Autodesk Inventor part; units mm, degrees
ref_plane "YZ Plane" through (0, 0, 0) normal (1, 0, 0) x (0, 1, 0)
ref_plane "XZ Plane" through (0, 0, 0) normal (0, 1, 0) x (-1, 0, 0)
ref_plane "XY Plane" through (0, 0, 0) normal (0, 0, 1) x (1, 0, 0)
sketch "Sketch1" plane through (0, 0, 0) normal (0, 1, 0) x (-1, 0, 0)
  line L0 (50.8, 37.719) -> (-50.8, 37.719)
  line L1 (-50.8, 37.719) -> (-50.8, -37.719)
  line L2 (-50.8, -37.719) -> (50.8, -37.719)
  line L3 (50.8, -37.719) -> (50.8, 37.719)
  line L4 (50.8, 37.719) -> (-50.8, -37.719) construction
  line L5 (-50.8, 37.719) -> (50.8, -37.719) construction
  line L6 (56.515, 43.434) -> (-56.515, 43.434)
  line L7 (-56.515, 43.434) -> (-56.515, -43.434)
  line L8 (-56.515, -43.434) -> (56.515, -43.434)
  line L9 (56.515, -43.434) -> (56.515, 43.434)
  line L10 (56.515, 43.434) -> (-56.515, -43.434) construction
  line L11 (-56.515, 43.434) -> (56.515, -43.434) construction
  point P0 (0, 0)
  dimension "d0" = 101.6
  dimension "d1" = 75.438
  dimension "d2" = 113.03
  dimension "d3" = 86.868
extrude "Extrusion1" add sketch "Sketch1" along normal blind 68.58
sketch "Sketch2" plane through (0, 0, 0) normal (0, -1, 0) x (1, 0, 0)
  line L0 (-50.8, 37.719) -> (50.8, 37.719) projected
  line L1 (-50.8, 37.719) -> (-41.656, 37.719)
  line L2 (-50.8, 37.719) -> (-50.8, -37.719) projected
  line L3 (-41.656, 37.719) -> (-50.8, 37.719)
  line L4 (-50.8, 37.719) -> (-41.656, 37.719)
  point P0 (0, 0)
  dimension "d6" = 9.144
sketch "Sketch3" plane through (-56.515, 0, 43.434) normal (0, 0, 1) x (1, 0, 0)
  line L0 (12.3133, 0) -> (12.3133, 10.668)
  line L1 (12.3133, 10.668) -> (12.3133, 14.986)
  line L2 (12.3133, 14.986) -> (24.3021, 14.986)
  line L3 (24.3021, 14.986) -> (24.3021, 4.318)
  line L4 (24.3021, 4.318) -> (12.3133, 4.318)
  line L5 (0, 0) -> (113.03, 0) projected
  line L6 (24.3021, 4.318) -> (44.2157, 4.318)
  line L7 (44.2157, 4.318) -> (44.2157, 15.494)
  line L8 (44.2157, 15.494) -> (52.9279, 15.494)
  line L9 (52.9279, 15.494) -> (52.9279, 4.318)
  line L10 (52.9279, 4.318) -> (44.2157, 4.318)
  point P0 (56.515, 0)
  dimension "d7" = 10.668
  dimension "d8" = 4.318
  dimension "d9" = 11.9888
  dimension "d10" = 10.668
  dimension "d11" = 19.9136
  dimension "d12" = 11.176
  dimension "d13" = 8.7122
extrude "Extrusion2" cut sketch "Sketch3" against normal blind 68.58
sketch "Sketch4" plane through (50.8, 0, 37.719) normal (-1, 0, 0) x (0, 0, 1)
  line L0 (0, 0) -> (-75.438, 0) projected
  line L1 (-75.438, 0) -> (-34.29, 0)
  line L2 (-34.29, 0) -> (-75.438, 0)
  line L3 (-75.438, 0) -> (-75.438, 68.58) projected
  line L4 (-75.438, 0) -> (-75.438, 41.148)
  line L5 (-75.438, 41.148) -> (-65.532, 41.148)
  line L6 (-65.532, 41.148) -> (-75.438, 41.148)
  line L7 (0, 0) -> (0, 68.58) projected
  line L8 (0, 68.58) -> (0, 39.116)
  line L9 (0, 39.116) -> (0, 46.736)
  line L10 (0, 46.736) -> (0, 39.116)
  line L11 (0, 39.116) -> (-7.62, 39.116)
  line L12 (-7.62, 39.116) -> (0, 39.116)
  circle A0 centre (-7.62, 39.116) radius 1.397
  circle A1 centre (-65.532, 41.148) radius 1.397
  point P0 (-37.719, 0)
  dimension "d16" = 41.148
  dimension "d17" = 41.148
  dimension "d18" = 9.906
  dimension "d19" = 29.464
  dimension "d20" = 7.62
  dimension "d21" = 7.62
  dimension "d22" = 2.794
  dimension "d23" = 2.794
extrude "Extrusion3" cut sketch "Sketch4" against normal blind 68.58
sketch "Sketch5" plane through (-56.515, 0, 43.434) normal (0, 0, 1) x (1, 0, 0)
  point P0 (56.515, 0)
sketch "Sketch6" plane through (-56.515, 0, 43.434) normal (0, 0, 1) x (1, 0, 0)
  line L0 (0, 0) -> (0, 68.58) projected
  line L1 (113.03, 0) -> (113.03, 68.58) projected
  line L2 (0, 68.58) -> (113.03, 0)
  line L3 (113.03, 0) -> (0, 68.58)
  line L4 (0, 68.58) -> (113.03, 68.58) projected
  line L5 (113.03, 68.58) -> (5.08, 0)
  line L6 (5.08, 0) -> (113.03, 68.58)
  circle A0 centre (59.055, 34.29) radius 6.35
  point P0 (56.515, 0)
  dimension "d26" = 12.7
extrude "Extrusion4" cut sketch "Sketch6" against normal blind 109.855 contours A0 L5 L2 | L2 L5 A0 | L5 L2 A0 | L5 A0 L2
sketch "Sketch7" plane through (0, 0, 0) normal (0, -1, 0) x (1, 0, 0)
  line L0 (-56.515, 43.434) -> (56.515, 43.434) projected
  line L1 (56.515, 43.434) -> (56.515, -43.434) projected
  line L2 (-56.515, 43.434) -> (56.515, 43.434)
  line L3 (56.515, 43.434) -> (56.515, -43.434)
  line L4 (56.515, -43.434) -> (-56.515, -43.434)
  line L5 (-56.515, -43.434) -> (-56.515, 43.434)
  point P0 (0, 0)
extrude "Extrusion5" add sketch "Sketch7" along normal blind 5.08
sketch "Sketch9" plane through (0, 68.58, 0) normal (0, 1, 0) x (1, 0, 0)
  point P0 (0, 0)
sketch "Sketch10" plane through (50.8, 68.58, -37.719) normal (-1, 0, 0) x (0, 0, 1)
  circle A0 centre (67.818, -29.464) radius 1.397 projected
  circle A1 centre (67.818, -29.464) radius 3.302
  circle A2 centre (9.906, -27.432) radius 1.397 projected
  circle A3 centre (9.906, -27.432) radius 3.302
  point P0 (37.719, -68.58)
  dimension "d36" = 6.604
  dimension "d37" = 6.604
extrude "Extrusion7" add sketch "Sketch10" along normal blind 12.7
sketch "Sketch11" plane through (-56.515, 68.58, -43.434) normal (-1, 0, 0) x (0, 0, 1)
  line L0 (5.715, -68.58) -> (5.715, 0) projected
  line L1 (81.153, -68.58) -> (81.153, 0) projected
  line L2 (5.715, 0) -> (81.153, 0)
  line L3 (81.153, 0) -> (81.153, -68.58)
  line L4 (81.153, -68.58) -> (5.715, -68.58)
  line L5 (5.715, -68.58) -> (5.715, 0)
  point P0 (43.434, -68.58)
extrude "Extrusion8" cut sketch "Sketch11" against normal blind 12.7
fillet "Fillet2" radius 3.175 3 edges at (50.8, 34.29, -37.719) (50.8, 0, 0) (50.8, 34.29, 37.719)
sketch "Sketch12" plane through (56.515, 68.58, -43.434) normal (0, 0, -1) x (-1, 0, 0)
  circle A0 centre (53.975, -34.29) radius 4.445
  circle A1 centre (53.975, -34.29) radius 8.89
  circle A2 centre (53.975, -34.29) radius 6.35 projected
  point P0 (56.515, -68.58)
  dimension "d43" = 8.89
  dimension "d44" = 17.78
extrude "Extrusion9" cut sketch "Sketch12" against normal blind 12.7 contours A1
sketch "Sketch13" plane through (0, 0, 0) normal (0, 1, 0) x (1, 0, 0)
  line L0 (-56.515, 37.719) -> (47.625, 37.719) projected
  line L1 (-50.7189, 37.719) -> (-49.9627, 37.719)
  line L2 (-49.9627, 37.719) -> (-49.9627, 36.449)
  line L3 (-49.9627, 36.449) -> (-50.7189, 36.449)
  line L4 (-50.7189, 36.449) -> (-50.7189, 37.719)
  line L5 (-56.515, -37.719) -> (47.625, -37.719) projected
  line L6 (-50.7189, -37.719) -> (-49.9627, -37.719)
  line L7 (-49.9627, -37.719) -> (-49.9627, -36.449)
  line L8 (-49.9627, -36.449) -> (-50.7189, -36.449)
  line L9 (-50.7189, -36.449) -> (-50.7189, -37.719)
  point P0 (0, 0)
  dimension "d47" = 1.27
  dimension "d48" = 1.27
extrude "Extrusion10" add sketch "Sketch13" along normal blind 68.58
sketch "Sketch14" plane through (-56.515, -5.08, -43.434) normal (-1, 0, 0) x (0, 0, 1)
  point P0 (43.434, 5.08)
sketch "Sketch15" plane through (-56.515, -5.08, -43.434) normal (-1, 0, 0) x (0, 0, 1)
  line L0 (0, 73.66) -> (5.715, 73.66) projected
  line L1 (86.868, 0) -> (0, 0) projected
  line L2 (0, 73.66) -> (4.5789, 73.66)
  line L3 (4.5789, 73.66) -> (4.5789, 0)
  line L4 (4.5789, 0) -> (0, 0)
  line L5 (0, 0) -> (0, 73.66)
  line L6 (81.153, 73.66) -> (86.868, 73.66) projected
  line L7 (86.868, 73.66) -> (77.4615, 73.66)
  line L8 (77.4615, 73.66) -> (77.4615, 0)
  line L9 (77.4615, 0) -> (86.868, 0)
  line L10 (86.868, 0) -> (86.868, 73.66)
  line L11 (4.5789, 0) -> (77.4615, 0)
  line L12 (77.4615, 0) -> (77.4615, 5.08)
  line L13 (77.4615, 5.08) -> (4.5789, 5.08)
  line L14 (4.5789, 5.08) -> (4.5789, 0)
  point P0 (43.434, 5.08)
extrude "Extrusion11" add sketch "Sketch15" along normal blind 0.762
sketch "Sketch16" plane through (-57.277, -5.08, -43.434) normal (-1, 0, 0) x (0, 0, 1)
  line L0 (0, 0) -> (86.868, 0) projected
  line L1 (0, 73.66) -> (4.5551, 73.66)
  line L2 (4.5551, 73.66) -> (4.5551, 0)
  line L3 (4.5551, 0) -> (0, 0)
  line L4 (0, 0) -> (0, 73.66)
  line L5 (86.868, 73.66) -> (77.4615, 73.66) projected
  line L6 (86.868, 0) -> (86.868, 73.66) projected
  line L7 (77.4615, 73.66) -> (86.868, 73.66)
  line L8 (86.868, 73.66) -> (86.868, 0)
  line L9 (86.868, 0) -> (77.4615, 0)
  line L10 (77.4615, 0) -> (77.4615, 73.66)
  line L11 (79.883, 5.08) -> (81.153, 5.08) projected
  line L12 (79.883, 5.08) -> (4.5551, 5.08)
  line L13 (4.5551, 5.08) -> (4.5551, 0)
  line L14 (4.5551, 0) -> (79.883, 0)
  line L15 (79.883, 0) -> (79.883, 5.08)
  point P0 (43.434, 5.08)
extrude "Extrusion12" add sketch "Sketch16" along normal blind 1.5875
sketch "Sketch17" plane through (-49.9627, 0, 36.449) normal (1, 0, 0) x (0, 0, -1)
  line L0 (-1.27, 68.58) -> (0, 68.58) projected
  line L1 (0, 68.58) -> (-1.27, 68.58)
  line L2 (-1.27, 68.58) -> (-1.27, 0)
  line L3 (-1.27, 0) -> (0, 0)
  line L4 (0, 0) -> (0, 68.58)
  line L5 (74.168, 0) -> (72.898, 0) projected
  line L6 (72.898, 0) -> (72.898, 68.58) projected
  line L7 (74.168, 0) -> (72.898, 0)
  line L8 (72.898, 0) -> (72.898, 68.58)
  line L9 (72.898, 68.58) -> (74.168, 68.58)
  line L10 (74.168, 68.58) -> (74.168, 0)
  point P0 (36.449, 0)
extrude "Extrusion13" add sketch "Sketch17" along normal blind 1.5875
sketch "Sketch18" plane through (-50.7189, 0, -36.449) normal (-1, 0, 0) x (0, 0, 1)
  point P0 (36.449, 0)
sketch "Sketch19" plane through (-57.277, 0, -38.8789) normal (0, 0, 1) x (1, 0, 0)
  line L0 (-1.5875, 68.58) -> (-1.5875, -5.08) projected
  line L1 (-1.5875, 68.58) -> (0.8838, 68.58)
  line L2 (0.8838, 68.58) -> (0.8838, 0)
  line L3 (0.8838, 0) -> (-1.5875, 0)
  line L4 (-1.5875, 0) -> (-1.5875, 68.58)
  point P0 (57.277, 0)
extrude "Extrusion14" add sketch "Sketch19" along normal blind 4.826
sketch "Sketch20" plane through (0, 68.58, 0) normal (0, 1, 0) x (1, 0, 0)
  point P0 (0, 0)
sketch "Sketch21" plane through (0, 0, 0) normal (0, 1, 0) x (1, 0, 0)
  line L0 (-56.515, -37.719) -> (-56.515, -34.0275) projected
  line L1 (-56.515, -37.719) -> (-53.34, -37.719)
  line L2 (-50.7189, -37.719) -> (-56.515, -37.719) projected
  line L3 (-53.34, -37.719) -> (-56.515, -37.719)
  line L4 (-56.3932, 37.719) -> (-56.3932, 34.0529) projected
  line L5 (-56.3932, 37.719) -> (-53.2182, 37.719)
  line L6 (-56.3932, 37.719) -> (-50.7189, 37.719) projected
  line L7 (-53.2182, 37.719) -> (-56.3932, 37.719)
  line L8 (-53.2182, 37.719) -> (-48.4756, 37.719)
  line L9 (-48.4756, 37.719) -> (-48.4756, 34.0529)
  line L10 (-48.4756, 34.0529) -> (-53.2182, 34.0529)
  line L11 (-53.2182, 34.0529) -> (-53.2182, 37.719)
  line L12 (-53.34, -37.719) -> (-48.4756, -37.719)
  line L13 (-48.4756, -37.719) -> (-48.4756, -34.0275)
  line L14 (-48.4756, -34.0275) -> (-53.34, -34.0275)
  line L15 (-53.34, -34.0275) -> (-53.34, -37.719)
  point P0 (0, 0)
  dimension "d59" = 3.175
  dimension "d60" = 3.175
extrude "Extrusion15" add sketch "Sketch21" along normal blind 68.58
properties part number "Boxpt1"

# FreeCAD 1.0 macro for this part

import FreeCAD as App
import Part
import Sketcher

V = App.Vector
Q = App.Units.Quantity


def edges_at(feature, points):
    """Names of the edges that pass closest to the given points."""
    edges = feature.Shape.Edges
    near = lambda p: min(range(len(edges)), key=lambda i: edges[i].distToShape(Part.Vertex(*p))[0])
    return sorted({f"Edge{near(p) + 1}" for p in points})

doc = App.newDocument("Part")
body = doc.addObject("PartDesign::Body", "Body")

# Sketch on XZ plane
sketch1 = body.newObject("Sketcher::SketchObject", "Sketch")
sketch1.AttachmentSupport = (doc.getObject("XZ_Plane"), [""])
sketch1.MapMode = "FlatFace"
sketch1.addGeometry(Part.LineSegment(V(-56.515, -43.434, 0), V(-56.515, 43.434, 0)), False)
sketch1.addGeometry(Part.LineSegment(V(-56.515, 43.434, 0), V(56.515, 43.434, 0)), False)
sketch1.addGeometry(Part.LineSegment(V(56.515, 43.434, 0), V(56.515, -43.434, 0)), False)
sketch1.addGeometry(Part.LineSegment(V(56.515, -43.434, 0), V(-56.515, -43.434, 0)), False)
sketch1.addGeometry(Part.LineSegment(V(50.8, 37.719, 0), V(-50.8, 37.719, 0)), False)
sketch1.addGeometry(Part.LineSegment(V(-50.8, 37.719, 0), V(-50.8, -37.719, 0)), False)
sketch1.addGeometry(Part.LineSegment(V(-50.8, -37.719, 0), V(50.8, -37.719, 0)), False)
sketch1.addGeometry(Part.LineSegment(V(50.8, -37.719, 0), V(50.8, 37.719, 0)), False)
sketch1.addConstraint(Sketcher.Constraint("Coincident", 0, 2, 1, 1))
sketch1.addConstraint(Sketcher.Constraint("Coincident", 1, 2, 2, 1))
sketch1.addConstraint(Sketcher.Constraint("Coincident", 2, 2, 3, 1))
sketch1.addConstraint(Sketcher.Constraint("Coincident", 3, 2, 0, 1))
sketch1.addConstraint(Sketcher.Constraint("Coincident", 4, 2, 5, 1))
sketch1.addConstraint(Sketcher.Constraint("Coincident", 5, 2, 6, 1))
sketch1.addConstraint(Sketcher.Constraint("Coincident", 6, 2, 7, 1))
sketch1.addConstraint(Sketcher.Constraint("Coincident", 7, 2, 4, 1))
sketch1.addConstraint(Sketcher.Constraint("Vertical", 0))
sketch1.addConstraint(Sketcher.Constraint("Horizontal", 1))
sketch1.addConstraint(Sketcher.Constraint("Vertical", 2))
sketch1.addConstraint(Sketcher.Constraint("Horizontal", 3))
sketch1.addConstraint(Sketcher.Constraint("Horizontal", 4))
sketch1.addConstraint(Sketcher.Constraint("Vertical", 5))
sketch1.addConstraint(Sketcher.Constraint("Horizontal", 6))
sketch1.addConstraint(Sketcher.Constraint("Vertical", 7))
sketch1.addConstraint(Sketcher.Constraint("Symmetric", 0, 2, 2, 2, -1, 1))
sketch1.addConstraint(Sketcher.Constraint("Symmetric", 4, 2, 6, 2, -1, 1))
sketch1.addConstraint(Sketcher.Constraint("DistanceX", 4, 2, 4, 1, Q("4 in")))
sketch1.addConstraint(Sketcher.Constraint("DistanceX", 1, 1, 1, 2, Q("4.45 in")))
sketch1.addConstraint(Sketcher.Constraint("DistanceY", 0, 1, 0, 2, Q("3.42 in")))
sketch1.addConstraint(Sketcher.Constraint("DistanceY", 5, 2, 5, 1, Q("2.97 in")))
pad1 = body.newObject("PartDesign::Pad", "Pad")
pad1.Profile = sketch1
pad1.Length = Q("2.7 in")
pad1.Reversed = True

# Sketch on XY plane
sketch2 = body.newObject("Sketcher::SketchObject", "Sketch001")
sketch2.AttachmentSupport = (doc.getObject("XY_Plane"), [""])
sketch2.MapMode = "FlatFace"
sketch2.AttachmentOffset = App.Placement(V(0, 0, 1.71 * 25.4), App.Rotation())
sketch2.addGeometry(Part.LineSegment(V(-12.2993, 15.494, 0), V(-12.2993, 4.318, 0)), False)
sketch2.addGeometry(Part.LineSegment(V(-12.2993, 4.318, 0), V(-3.5871, 4.318, 0)), False)
sketch2.addGeometry(Part.LineSegment(V(-3.5871, 4.318, 0), V(-3.5871, 15.494, 0)), False)
sketch2.addGeometry(Part.LineSegment(V(-3.5871, 15.494, 0), V(-12.2993, 15.494, 0)), False)
sketch2.addGeometry(Part.LineSegment(V(-44.2017, 14.986, 0), V(-44.2017, 4.318, 0)), False)
sketch2.addGeometry(Part.LineSegment(V(-44.2017, 4.318, 0), V(-32.2129, 4.318, 0)), False)
sketch2.addGeometry(Part.LineSegment(V(-32.2129, 4.318, 0), V(-32.2129, 14.986, 0)), False)
sketch2.addGeometry(Part.LineSegment(V(-32.2129, 14.986, 0), V(-44.2017, 14.986, 0)), False)
sketch2.addConstraint(Sketcher.Constraint("Coincident", 0, 2, 1, 1))
sketch2.addConstraint(Sketcher.Constraint("Coincident", 1, 2, 2, 1))
sketch2.addConstraint(Sketcher.Constraint("Coincident", 2, 2, 3, 1))
sketch2.addConstraint(Sketcher.Constraint("Coincident", 3, 2, 0, 1))
sketch2.addConstraint(Sketcher.Constraint("Coincident", 4, 2, 5, 1))
sketch2.addConstraint(Sketcher.Constraint("Coincident", 5, 2, 6, 1))
sketch2.addConstraint(Sketcher.Constraint("Coincident", 6, 2, 7, 1))
sketch2.addConstraint(Sketcher.Constraint("Coincident", 7, 2, 4, 1))
sketch2.addConstraint(Sketcher.Constraint("Vertical", 0))
sketch2.addConstraint(Sketcher.Constraint("Horizontal", 1))
sketch2.addConstraint(Sketcher.Constraint("Vertical", 2))
sketch2.addConstraint(Sketcher.Constraint("Horizontal", 3))
sketch2.addConstraint(Sketcher.Constraint("Vertical", 4))
sketch2.addConstraint(Sketcher.Constraint("Horizontal", 5))
sketch2.addConstraint(Sketcher.Constraint("Vertical", 6))
sketch2.addConstraint(Sketcher.Constraint("Horizontal", 7))
sketch2.addConstraint(Sketcher.Constraint("Horizontal", 1, 2, 4, 2))
sketch2.addConstraint(Sketcher.Constraint("DistanceY", 0, 2, 0, 1, Q("0.44 in")))
sketch2.addConstraint(Sketcher.Constraint("DistanceY", 4, 2, 4, 1, Q("0.42 in")))
sketch2.addConstraint(Sketcher.Constraint("DistanceX", 1, 1, 1, 2, Q("0.343 in")))
sketch2.addConstraint(Sketcher.Constraint("DistanceX", 5, 1, 5, 2, Q("0.472 in")))
sketch2.addConstraint(Sketcher.Constraint("DistanceY", -1, 1, 0, 2, Q("0.17 in")))
sketch2.addConstraint(Sketcher.Constraint("DistanceX", 5, 2, 0, 2, Q("0.784 in")))
sketch2.addConstraint(Sketcher.Constraint("DistanceX", 0, 2, -1, 1, 12.2993))
pocket1 = body.newObject("PartDesign::Pocket", "Pocket")
pocket1.Profile = sketch2
pocket1.Length = Q("2.7 in")

# Sketch on YZ plane
sketch3 = body.newObject("Sketcher::SketchObject", "Sketch002")
sketch3.AttachmentSupport = (doc.getObject("YZ_Plane"), [""])
sketch3.MapMode = "FlatFace"
sketch3.AttachmentOffset = App.Placement(V(0, 0, 2 * 25.4), App.Rotation())
sketch3.addGeometry(Part.Circle(V(41.148, -27.813, 0), V(0, 0, 1), 1.397), False)
sketch3.addGeometry(Part.Circle(V(39.116, 30.099, 0), V(0, 0, 1), 1.397), False)
sketch3.addConstraint(Sketcher.Constraint("Equal", 0, 1))
sketch3.addConstraint(Sketcher.Constraint("Diameter", 0, Q("0.11 in")))
sketch3.addConstraint(Sketcher.Constraint("DistanceX", -1, 1, 0, 3, Q("1.62 in")))
sketch3.addConstraint(Sketcher.Constraint("DistanceX", -1, 1, 1, 3, Q("1.54 in")))
sketch3.addConstraint(Sketcher.Constraint("DistanceY", 0, 3, 1, 3, Q("2.28 in")))
sketch3.addConstraint(Sketcher.Constraint("DistanceY", 0, 3, -1, 1, Q("1.095 in")))
pocket2 = body.newObject("PartDesign::Pocket", "Pocket001")
pocket2.Profile = sketch3
pocket2.Length = Q("2.7 in")
pocket2.Reversed = True

# Sketch on XY plane
sketch4 = body.newObject("Sketcher::SketchObject", "Sketch003")
sketch4.AttachmentSupport = (doc.getObject("XY_Plane"), [""])
sketch4.MapMode = "FlatFace"
sketch4.AttachmentOffset = App.Placement(V(0, 0, 1.71 * 25.4), App.Rotation())
sketch4.addGeometry(Part.Circle(V(2.54, 34.29, 0), V(0, 0, 1), 6.35), False)
sketch4.addConstraint(Sketcher.Constraint("Diameter", 0, Q("0.5 in")))
sketch4.addConstraint(Sketcher.Constraint("DistanceX", -1, 1, 0, 3, Q("0.1 in")))
sketch4.addConstraint(Sketcher.Constraint("DistanceY", -1, 1, 0, 3, Q("1.35 in")))
pocket3 = body.newObject("PartDesign::Pocket", "Pocket002")
pocket3.Profile = sketch4
pocket3.Length = Q("4.325 in")

# Sketch on XZ plane
sketch5 = body.newObject("Sketcher::SketchObject", "Sketch004")
sketch5.AttachmentSupport = (doc.getObject("XZ_Plane"), [""])
sketch5.MapMode = "FlatFace"
sketch5.addGeometry(Part.LineSegment(V(56.515, 43.434, 0), V(-56.515, 43.434, 0)), False)
sketch5.addGeometry(Part.LineSegment(V(-56.515, 43.434, 0), V(-56.515, -43.434, 0)), False)
sketch5.addGeometry(Part.LineSegment(V(-56.515, -43.434, 0), V(56.515, -43.434, 0)), False)
sketch5.addGeometry(Part.LineSegment(V(56.515, -43.434, 0), V(56.515, 43.434, 0)), False)
sketch5.addConstraint(Sketcher.Constraint("Coincident", 0, 2, 1, 1))
sketch5.addConstraint(Sketcher.Constraint("Coincident", 1, 2, 2, 1))
sketch5.addConstraint(Sketcher.Constraint("Coincident", 2, 2, 3, 1))
sketch5.addConstraint(Sketcher.Constraint("Coincident", 3, 2, 0, 1))
sketch5.addConstraint(Sketcher.Constraint("Horizontal", 0))
sketch5.addConstraint(Sketcher.Constraint("Vertical", 1))
sketch5.addConstraint(Sketcher.Constraint("Horizontal", 2))
sketch5.addConstraint(Sketcher.Constraint("Vertical", 3))
sketch5.addConstraint(Sketcher.Constraint("Symmetric", 0, 2, 2, 2, -1, 1))
sketch5.addConstraint(Sketcher.Constraint("DistanceX", 0, 2, 0, 1, Q("4.45 in")))
sketch5.addConstraint(Sketcher.Constraint("DistanceY", 1, 2, 1, 1, Q("3.42 in")))
pad2 = body.newObject("PartDesign::Pad", "Pad001")
pad2.Profile = sketch5
pad2.Length = Q("0.2 in")

# Sketch on YZ plane
sketch6 = body.newObject("Sketcher::SketchObject", "Sketch005")
sketch6.AttachmentSupport = (doc.getObject("YZ_Plane"), [""])
sketch6.MapMode = "FlatFace"
sketch6.AttachmentOffset = App.Placement(V(0, 0, 2 * 25.4), App.Rotation())
sketch6.addGeometry(Part.Circle(V(39.116, 30.099, 0), V(0, 0, 1), 3.302), False)
sketch6.addGeometry(Part.Circle(V(39.116, 30.099, 0), V(0, 0, 1), 1.397), False)
sketch6.addGeometry(Part.Circle(V(41.148, -27.813, 0), V(0, 0, 1), 3.302), False)
sketch6.addGeometry(Part.Circle(V(41.148, -27.813, 0), V(0, 0, 1), 1.397), False)
sketch6.addConstraint(Sketcher.Constraint("Coincident", 1, 3, 0, 3))
sketch6.addConstraint(Sketcher.Constraint("Coincident", 3, 3, 2, 3))
sketch6.addConstraint(Sketcher.Constraint("Equal", 0, 2))
sketch6.addConstraint(Sketcher.Constraint("Equal", 1, 3))
sketch6.addConstraint(Sketcher.Constraint("Diameter", 0, Q("0.26 in")))
sketch6.addConstraint(Sketcher.Constraint("Diameter", 1, Q("0.11 in")))
sketch6.addConstraint(Sketcher.Constraint("DistanceX", -1, 1, 0, 3, Q("1.54 in")))
sketch6.addConstraint(Sketcher.Constraint("DistanceX", -1, 1, 2, 3, Q("1.62 in")))
sketch6.addConstraint(Sketcher.Constraint("DistanceY", 2, 3, 0, 3, Q("2.28 in")))
sketch6.addConstraint(Sketcher.Constraint("DistanceY", -1, 1, 0, 3, Q("1.185 in")))
pad3 = body.newObject("PartDesign::Pad", "Pad002")
pad3.Profile = sketch6
pad3.Length = Q("0.5 in")
pad3.Reversed = True

# Sketch on YZ plane
sketch7 = body.newObject("Sketcher::SketchObject", "Sketch006")
sketch7.AttachmentSupport = (doc.getObject("YZ_Plane"), [""])
sketch7.MapMode = "FlatFace"
sketch7.AttachmentOffset = App.Placement(V(0, 0, -2.225 * 25.4), App.Rotation())
sketch7.addGeometry(Part.LineSegment(V(68.58, -37.719, 0), V(0, -37.719, 0)), False)
sketch7.addGeometry(Part.LineSegment(V(0, -37.719, 0), V(0, 37.719, 0)), False)
sketch7.addGeometry(Part.LineSegment(V(0, 37.719, 0), V(68.58, 37.719, 0)), False)
sketch7.addGeometry(Part.LineSegment(V(68.58, 37.719, 0), V(68.58, -37.719, 0)), False)
sketch7.addConstraint(Sketcher.Constraint("Coincident", 0, 2, 1, 1))
sketch7.addConstraint(Sketcher.Constraint("Coincident", 1, 2, 2, 1))
sketch7.addConstraint(Sketcher.Constraint("Coincident", 2, 2, 3, 1))
sketch7.addConstraint(Sketcher.Constraint("Coincident", 3, 2, 0, 1))
sketch7.addConstraint(Sketcher.Constraint("Horizontal", 0))
sketch7.addConstraint(Sketcher.Constraint("Vertical", 1))
sketch7.addConstraint(Sketcher.Constraint("Horizontal", 2))
sketch7.addConstraint(Sketcher.Constraint("Vertical", 3))
sketch7.addConstraint(Sketcher.Constraint("Symmetric", 0, 2, 1, 2, -1, 1))
sketch7.addConstraint(Sketcher.Constraint("DistanceX", 0, 2, 0, 1, Q("2.7 in")))
sketch7.addConstraint(Sketcher.Constraint("DistanceY", 1, 1, 1, 2, Q("2.97 in")))
pocket4 = body.newObject("PartDesign::Pocket", "Pocket003")
pocket4.Profile = sketch7
pocket4.Length = Q("0.5 in")
pocket4.Reversed = True
doc.recompute()

fillet = body.newObject("PartDesign::Fillet", "Fillet")
fillet.Base = (pocket4, edges_at(pocket4, [(50.8, 34.29, -37.719), (50.8, 0, 0), (50.8, 34.29, 37.719)]))
fillet.Radius = Q("0.125 in")

# Sketch on XY plane
sketch8 = body.newObject("Sketcher::SketchObject", "Sketch007")
sketch8.AttachmentSupport = (doc.getObject("XY_Plane"), [""])
sketch8.MapMode = "FlatFace"
sketch8.AttachmentOffset = App.Placement(V(0, 0, -1.71 * 25.4), App.Rotation())
sketch8.addGeometry(Part.Circle(V(2.54, 34.29, 0), V(0, 0, 1), 8.89), False)
sketch8.addGeometry(Part.Circle(V(2.54, 34.29, 0), V(0, 0, 1), 6.35), False)
sketch8.addConstraint(Sketcher.Constraint("Coincident", 1, 3, 0, 3))
sketch8.addConstraint(Sketcher.Constraint("Diameter", 0, Q("0.7 in")))
sketch8.addConstraint(Sketcher.Constraint("Diameter", 1, Q("0.5 in")))
sketch8.addConstraint(Sketcher.Constraint("DistanceX", -1, 1, 0, 3, Q("0.1 in")))
sketch8.addConstraint(Sketcher.Constraint("DistanceY", -1, 1, 0, 3, Q("1.35 in")))
pocket5 = body.newObject("PartDesign::Pocket", "Pocket004")
pocket5.Profile = sketch8
pocket5.Length = Q("0.5 in")
pocket5.Reversed = True

# Sketch on XZ plane
sketch9 = body.newObject("Sketcher::SketchObject", "Sketch008")
sketch9.AttachmentSupport = (doc.getObject("XZ_Plane"), [""])
sketch9.MapMode = "FlatFace"
sketch9.addGeometry(Part.LineSegment(V(-49.9627, -37.719, 0), V(-50.7189, -37.719, 0)), False)
sketch9.addGeometry(Part.LineSegment(V(-50.7189, -37.719, 0), V(-50.7189, -36.449, 0)), False)
sketch9.addGeometry(Part.LineSegment(V(-50.7189, -36.449, 0), V(-49.9627, -36.449, 0)), False)
sketch9.addGeometry(Part.LineSegment(V(-49.9627, -36.449, 0), V(-49.9627, -37.719, 0)), False)
sketch9.addGeometry(Part.LineSegment(V(-50.7189, 36.449, 0), V(-50.7189, 37.719, 0)), False)
sketch9.addGeometry(Part.LineSegment(V(-50.7189, 37.719, 0), V(-49.9627, 37.719, 0)), False)
sketch9.addGeometry(Part.LineSegment(V(-49.9627, 37.719, 0), V(-49.9627, 36.449, 0)), False)
sketch9.addGeometry(Part.LineSegment(V(-49.9627, 36.449, 0), V(-50.7189, 36.449, 0)), False)
sketch9.addConstraint(Sketcher.Constraint("Coincident", 0, 2, 1, 1))
sketch9.addConstraint(Sketcher.Constraint("Coincident", 1, 2, 2, 1))
sketch9.addConstraint(Sketcher.Constraint("Coincident", 2, 2, 3, 1))
sketch9.addConstraint(Sketcher.Constraint("Coincident", 3, 2, 0, 1))
sketch9.addConstraint(Sketcher.Constraint("Coincident", 4, 2, 5, 1))
sketch9.addConstraint(Sketcher.Constraint("Coincident", 5, 2, 6, 1))
sketch9.addConstraint(Sketcher.Constraint("Coincident", 6, 2, 7, 1))
sketch9.addConstraint(Sketcher.Constraint("Coincident", 7, 2, 4, 1))
sketch9.addConstraint(Sketcher.Constraint("Horizontal", 0))
sketch9.addConstraint(Sketcher.Constraint("Vertical", 1))
sketch9.addConstraint(Sketcher.Constraint("Horizontal", 2))
sketch9.addConstraint(Sketcher.Constraint("Vertical", 3))
sketch9.addConstraint(Sketcher.Constraint("Vertical", 4))
sketch9.addConstraint(Sketcher.Constraint("Horizontal", 5))
sketch9.addConstraint(Sketcher.Constraint("Vertical", 6))
sketch9.addConstraint(Sketcher.Constraint("Horizontal", 7))
sketch9.addConstraint(Sketcher.Constraint("Symmetric", 0, 2, 4, 2, -1))
sketch9.addConstraint(Sketcher.Constraint("Symmetric", 2, 2, 6, 2, -1))
sketch9.addConstraint(Sketcher.Constraint("DistanceY", 1, 1, 1, 2, Q("0.05 in")))
sketch9.addConstraint(Sketcher.Constraint("DistanceY", 1, 2, 4, 2, Q("2.92 in")))
sketch9.addConstraint(Sketcher.Constraint("DistanceX", 0, 2, 0, 1, 0.7562))
sketch9.addConstraint(Sketcher.Constraint("DistanceX", 0, 2, -1, 1, Q("1.9968 in")))
pad4 = body.newObject("PartDesign::Pad", "Pad003")
pad4.Profile = sketch9
pad4.Length = Q("2.7 in")
pad4.Reversed = True

# Sketch on YZ plane
sketch10 = body.newObject("Sketcher::SketchObject", "Sketch009")
sketch10.AttachmentSupport = (doc.getObject("YZ_Plane"), [""])
sketch10.MapMode = "FlatFace"
sketch10.AttachmentOffset = App.Placement(V(0, 0, -2.225 * 25.4), App.Rotation())
sketch10.addGeometry(Part.LineSegment(V(68.58, -38.8551, 0), V(68.58, -43.434, 0)), False)
sketch10.addGeometry(Part.LineSegment(V(68.58, -43.434, 0), V(-5.08, -43.434, 0)), False)
sketch10.addGeometry(Part.LineSegment(V(-5.08, -43.434, 0), V(-5.08, 43.434, 0)), False)
sketch10.addGeometry(Part.LineSegment(V(-5.08, 43.434, 0), V(68.58, 43.434, 0)), False)
sketch10.addGeometry(Part.LineSegment(V(68.58, 43.434, 0), V(68.58, 34.0275, 0)), False)
sketch10.addGeometry(Part.LineSegment(V(68.58, 34.0275, 0), V(0, 34.0275, 0)), False)
sketch10.addGeometry(Part.LineSegment(V(0, 34.0275, 0), V(0, -38.8551, 0)), False)
sketch10.addGeometry(Part.LineSegment(V(0, -38.8551, 0), V(68.58, -38.8551, 0)), False)
sketch10.addConstraint(Sketcher.Constraint("Coincident", 0, 2, 1, 1))
sketch10.addConstraint(Sketcher.Constraint("Coincident", 1, 2, 2, 1))
sketch10.addConstraint(Sketcher.Constraint("Coincident", 2, 2, 3, 1))
sketch10.addConstraint(Sketcher.Constraint("Coincident", 3, 2, 4, 1))
sketch10.addConstraint(Sketcher.Constraint("Coincident", 4, 2, 5, 1))
sketch10.addConstraint(Sketcher.Constraint("Coincident", 5, 2, 6, 1))
sketch10.addConstraint(Sketcher.Constraint("Coincident", 6, 2, 7, 1))
sketch10.addConstraint(Sketcher.Constraint("Coincident", 7, 2, 0, 1))
sketch10.addConstraint(Sketcher.Constraint("Vertical", 0))
sketch10.addConstraint(Sketcher.Constraint("Horizontal", 1))
sketch10.addConstraint(Sketcher.Constraint("Vertical", 2))
sketch10.addConstraint(Sketcher.Constraint("Horizontal", 3))
sketch10.addConstraint(Sketcher.Constraint("Vertical", 4))
sketch10.addConstraint(Sketcher.Constraint("Horizontal", 5))
sketch10.addConstraint(Sketcher.Constraint("Vertical", 6))
sketch10.addConstraint(Sketcher.Constraint("Horizontal", 7))
sketch10.addConstraint(Sketcher.Constraint("Symmetric", 0, 2, 3, 2, -1))
sketch10.addConstraint(Sketcher.Constraint("PointOnObject", 5, 2, -2))
sketch10.addConstraint(Sketcher.Constraint("DistanceX", 1, 2, 1, 1, Q("2.9 in")))
sketch10.addConstraint(Sketcher.Constraint("DistanceX", 5, 2, 5, 1, Q("2.7 in")))
sketch10.addConstraint(Sketcher.Constraint("DistanceY", 2, 1, 2, 2, Q("3.42 in")))
sketch10.addConstraint(Sketcher.Constraint("DistanceY", 6, 2, 6, 1, Q("2.8694 in")))
sketch10.addConstraint(Sketcher.Constraint("DistanceY", 0, 2, 0, 1, 4.579))
pad5 = body.newObject("PartDesign::Pad", "Pad004")
pad5.Profile = sketch10
pad5.Length = Q("0.03 in")
pad5.Reversed = True

# Sketch on YZ plane
sketch11 = body.newObject("Sketcher::SketchObject", "Sketch010")
sketch11.AttachmentSupport = (doc.getObject("YZ_Plane"), [""])
sketch11.MapMode = "FlatFace"
sketch11.AttachmentOffset = App.Placement(V(0, 0, -2.255 * 25.4), App.Rotation())
sketch11.addGeometry(Part.LineSegment(V(68.58, -43.434, 0), V(-5.08, -43.434, 0)), False)
sketch11.addGeometry(Part.LineSegment(V(-5.08, -43.434, 0), V(-5.08, 43.434, 0)), False)
sketch11.addGeometry(Part.LineSegment(V(-5.08, 43.434, 0), V(68.58, 43.434, 0)), False)
sketch11.addGeometry(Part.LineSegment(V(68.58, 43.434, 0), V(68.58, 34.0275, 0)), False)
sketch11.addGeometry(Part.LineSegment(V(68.58, 34.0275, 0), V(0, 34.0275, 0)), False)
sketch11.addGeometry(Part.LineSegment(V(0, 34.0275, 0), V(0, -38.8789, 0)), False)
sketch11.addGeometry(Part.LineSegment(V(0, -38.8789, 0), V(68.58, -38.8789, 0)), False)
sketch11.addGeometry(Part.LineSegment(V(68.58, -38.8789, 0), V(68.58, -43.434, 0)), False)
sketch11.addConstraint(Sketcher.Constraint("Coincident", 0, 2, 1, 1))
sketch11.addConstraint(Sketcher.Constraint("Coincident", 1, 2, 2, 1))
sketch11.addConstraint(Sketcher.Constraint("Coincident", 2, 2, 3, 1))
sketch11.addConstraint(Sketcher.Constraint("Coincident", 3, 2, 4, 1))
sketch11.addConstraint(Sketcher.Constraint("Coincident", 4, 2, 5, 1))
sketch11.addConstraint(Sketcher.Constraint("Coincident", 5, 2, 6, 1))
sketch11.addConstraint(Sketcher.Constraint("Coincident", 6, 2, 7, 1))
sketch11.addConstraint(Sketcher.Constraint("Coincident", 7, 2, 0, 1))
sketch11.addConstraint(Sketcher.Constraint("Horizontal", 0))
sketch11.addConstraint(Sketcher.Constraint("Vertical", 1))
sketch11.addConstraint(Sketcher.Constraint("Horizontal", 2))
sketch11.addConstraint(Sketcher.Constraint("Vertical", 3))
sketch11.addConstraint(Sketcher.Constraint("Horizontal", 4))
sketch11.addConstraint(Sketcher.Constraint("Vertical", 5))
sketch11.addConstraint(Sketcher.Constraint("Horizontal", 6))
sketch11.addConstraint(Sketcher.Constraint("Vertical", 7))
sketch11.addConstraint(Sketcher.Constraint("Symmetric", 2, 2, 7, 2, -1))
sketch11.addConstraint(Sketcher.Constraint("PointOnObject", 4, 2, -2))
sketch11.addConstraint(Sketcher.Constraint("DistanceX", 0, 2, 0, 1, Q("2.9 in")))
sketch11.addConstraint(Sketcher.Constraint("DistanceX", 4, 2, 4, 1, Q("2.7 in")))
sketch11.addConstraint(Sketcher.Constraint("DistanceY", 1, 1, 1, 2, Q("3.42 in")))
sketch11.addConstraint(Sketcher.Constraint("DistanceY", 3, 2, 3, 1, 9.4065))
sketch11.addConstraint(Sketcher.Constraint("DistanceY", 5, 2, 5, 1, 72.9064))
pad6 = body.newObject("PartDesign::Pad", "Pad005")
pad6.Profile = sketch11
pad6.Length = Q("0.0625 in")
pad6.Reversed = True

# Sketch on YZ plane
sketch12 = body.newObject("Sketcher::SketchObject", "Sketch011")
sketch12.AttachmentSupport = (doc.getObject("YZ_Plane"), [""])
sketch12.MapMode = "FlatFace"
sketch12.AttachmentOffset = App.Placement(V(0, 0, -49.9627), App.Rotation())
sketch12.addGeometry(Part.LineSegment(V(68.58, 36.449, 0), V(68.58, 37.719, 0)), False)
sketch12.addGeometry(Part.LineSegment(V(68.58, 37.719, 0), V(0, 37.719, 0)), False)
sketch12.addGeometry(Part.LineSegment(V(0, 37.719, 0), V(0, 36.449, 0)), False)
sketch12.addGeometry(Part.LineSegment(V(0, 36.449, 0), V(68.58, 36.449, 0)), False)
sketch12.addGeometry(Part.LineSegment(V(0, -36.449, 0), V(0, -37.719, 0)), False)
sketch12.addGeometry(Part.LineSegment(V(0, -37.719, 0), V(68.58, -37.719, 0)), False)
sketch12.addGeometry(Part.LineSegment(V(68.58, -37.719, 0), V(68.58, -36.449, 0)), False)
sketch12.addGeometry(Part.LineSegment(V(68.58, -36.449, 0), V(0, -36.449, 0)), False)
sketch12.addConstraint(Sketcher.Constraint("Coincident", 0, 2, 1, 1))
sketch12.addConstraint(Sketcher.Constraint("Coincident", 1, 2, 2, 1))
sketch12.addConstraint(Sketcher.Constraint("Coincident", 2, 2, 3, 1))
sketch12.addConstraint(Sketcher.Constraint("Coincident", 3, 2, 0, 1))
sketch12.addConstraint(Sketcher.Constraint("Coincident", 4, 2, 5, 1))
sketch12.addConstraint(Sketcher.Constraint("Coincident", 5, 2, 6, 1))
sketch12.addConstraint(Sketcher.Constraint("Coincident", 6, 2, 7, 1))
sketch12.addConstraint(Sketcher.Constraint("Coincident", 7, 2, 4, 1))
sketch12.addConstraint(Sketcher.Constraint("Vertical", 0))
sketch12.addConstraint(Sketcher.Constraint("Horizontal", 1))
sketch12.addConstraint(Sketcher.Constraint("Vertical", 2))
sketch12.addConstraint(Sketcher.Constraint("Horizontal", 3))
sketch12.addConstraint(Sketcher.Constraint("Vertical", 4))
sketch12.addConstraint(Sketcher.Constraint("Horizontal", 5))
sketch12.addConstraint(Sketcher.Constraint("Vertical", 6))
sketch12.addConstraint(Sketcher.Constraint("Horizontal", 7))
sketch12.addConstraint(Sketcher.Constraint("Symmetric", 1, 2, 4, 2, -1, 1))
sketch12.addConstraint(Sketcher.Constraint("Symmetric", 3, 2, 6, 2, -1))
sketch12.addConstraint(Sketcher.Constraint("PointOnObject", 1, 2, -2))
sketch12.addConstraint(Sketcher.Constraint("DistanceX", 1, 2, 1, 1, Q("2.7 in")))
sketch12.addConstraint(Sketcher.Constraint("DistanceY", 0, 1, 0, 2, Q("0.05 in")))
sketch12.addConstraint(Sketcher.Constraint("DistanceY", 4, 2, 2, 2, Q("2.92 in")))
pad7 = body.newObject("PartDesign::Pad", "Pad006")
pad7.Profile = sketch12
pad7.Length = Q("0.0625 in")

# Sketch on XY plane
sketch13 = body.newObject("Sketcher::SketchObject", "Sketch012")
sketch13.AttachmentSupport = (doc.getObject("XY_Plane"), [""])
sketch13.MapMode = "FlatFace"
sketch13.AttachmentOffset = App.Placement(V(0, 0, -38.8789), App.Rotation())
sketch13.addGeometry(Part.LineSegment(V(-56.3932, 68.58, 0), V(-58.8645, 68.58, 0)), False)
sketch13.addGeometry(Part.LineSegment(V(-58.8645, 68.58, 0), V(-58.8645, 0, 0)), False)
sketch13.addGeometry(Part.LineSegment(V(-58.8645, 0, 0), V(-56.3932, 0, 0)), False)
sketch13.addGeometry(Part.LineSegment(V(-56.3932, 0, 0), V(-56.3932, 68.58, 0)), False)
sketch13.addConstraint(Sketcher.Constraint("Coincident", 0, 2, 1, 1))
sketch13.addConstraint(Sketcher.Constraint("Coincident", 1, 2, 2, 1))
sketch13.addConstraint(Sketcher.Constraint("Coincident", 2, 2, 3, 1))
sketch13.addConstraint(Sketcher.Constraint("Coincident", 3, 2, 0, 1))
sketch13.addConstraint(Sketcher.Constraint("Horizontal", 0))
sketch13.addConstraint(Sketcher.Constraint("Vertical", 1))
sketch13.addConstraint(Sketcher.Constraint("Horizontal", 2))
sketch13.addConstraint(Sketcher.Constraint("Vertical", 3))
sketch13.addConstraint(Sketcher.Constraint("PointOnObject", 1, 2, -1))
sketch13.addConstraint(Sketcher.Constraint("DistanceY", 1, 2, 1, 1, Q("2.7 in")))
sketch13.addConstraint(Sketcher.Constraint("DistanceX", 0, 2, 0, 1, Q("0.0973 in")))
sketch13.addConstraint(Sketcher.Constraint("DistanceX", 0, 2, -1, 1, Q("2.3175 in")))
pad8 = body.newObject("PartDesign::Pad", "Pad007")
pad8.Profile = sketch13
pad8.Length = Q("0.19 in")

# Sketch on XZ plane
sketch14 = body.newObject("Sketcher::SketchObject", "Sketch013")
sketch14.AttachmentSupport = (doc.getObject("XZ_Plane"), [""])
sketch14.MapMode = "FlatFace"
sketch14.addGeometry(Part.LineSegment(V(-53.34, 37.719, 0), V(-48.4756, 37.719, 0)), False)
sketch14.addGeometry(Part.LineSegment(V(-48.4756, 37.719, 0), V(-48.4756, 34.0275, 0)), False)
sketch14.addGeometry(Part.LineSegment(V(-48.4756, 34.0275, 0), V(-53.34, 34.0275, 0)), False)
sketch14.addGeometry(Part.LineSegment(V(-53.34, 34.0275, 0), V(-53.34, 37.719, 0)), False)
sketch14.addGeometry(Part.LineSegment(V(-48.4756, -37.719, 0), V(-53.2182, -37.719, 0)), False)
sketch14.addGeometry(Part.LineSegment(V(-53.2182, -37.719, 0), V(-53.2182, -34.0529, 0)), False)
sketch14.addGeometry(Part.LineSegment(V(-53.2182, -34.0529, 0), V(-48.4756, -34.0529, 0)), False)
sketch14.addGeometry(Part.LineSegment(V(-48.4756, -34.0529, 0), V(-48.4756, -37.719, 0)), False)
sketch14.addConstraint(Sketcher.Constraint("Coincident", 0, 2, 1, 1))
sketch14.addConstraint(Sketcher.Constraint("Coincident", 1, 2, 2, 1))
sketch14.addConstraint(Sketcher.Constraint("Coincident", 2, 2, 3, 1))
sketch14.addConstraint(Sketcher.Constraint("Coincident", 3, 2, 0, 1))
sketch14.addConstraint(Sketcher.Constraint("Coincident", 4, 2, 5, 1))
sketch14.addConstraint(Sketcher.Constraint("Coincident", 5, 2, 6, 1))
sketch14.addConstraint(Sketcher.Constraint("Coincident", 6, 2, 7, 1))
sketch14.addConstraint(Sketcher.Constraint("Coincident", 7, 2, 4, 1))
sketch14.addConstraint(Sketcher.Constraint("Horizontal", 0))
sketch14.addConstraint(Sketcher.Constraint("Vertical", 1))
sketch14.addConstraint(Sketcher.Constraint("Horizontal", 2))
sketch14.addConstraint(Sketcher.Constraint("Vertical", 3))
sketch14.addConstraint(Sketcher.Constraint("Horizontal", 4))
sketch14.addConstraint(Sketcher.Constraint("Vertical", 5))
sketch14.addConstraint(Sketcher.Constraint("Horizontal", 6))
sketch14.addConstraint(Sketcher.Constraint("Vertical", 7))
sketch14.addConstraint(Sketcher.Constraint("Symmetric", 0, 2, 7, 2, -1))
sketch14.addConstraint(Sketcher.Constraint("DistanceX", 2, 2, -1, 1, Q("2.1 in")))
sketch14.addConstraint(Sketcher.Constraint("DistanceY", 4, 2, 3, 2, Q("2.97 in")))
sketch14.addConstraint(Sketcher.Constraint("DistanceX", 0, 1, 0, 2, Q("0.1915 in")))
sketch14.addConstraint(Sketcher.Constraint("DistanceX", 4, 2, 4, 1, 4.7426))
sketch14.addConstraint(Sketcher.Constraint("DistanceY", 1, 2, 1, 1, 3.6915))
sketch14.addConstraint(Sketcher.Constraint("DistanceY", 5, 1, 5, 2, 3.666))
pad9 = body.newObject("PartDesign::Pad", "Pad008")
pad9.Profile = sketch14
pad9.Length = Q("2.7 in")
pad9.Reversed = True

doc.recompute()
